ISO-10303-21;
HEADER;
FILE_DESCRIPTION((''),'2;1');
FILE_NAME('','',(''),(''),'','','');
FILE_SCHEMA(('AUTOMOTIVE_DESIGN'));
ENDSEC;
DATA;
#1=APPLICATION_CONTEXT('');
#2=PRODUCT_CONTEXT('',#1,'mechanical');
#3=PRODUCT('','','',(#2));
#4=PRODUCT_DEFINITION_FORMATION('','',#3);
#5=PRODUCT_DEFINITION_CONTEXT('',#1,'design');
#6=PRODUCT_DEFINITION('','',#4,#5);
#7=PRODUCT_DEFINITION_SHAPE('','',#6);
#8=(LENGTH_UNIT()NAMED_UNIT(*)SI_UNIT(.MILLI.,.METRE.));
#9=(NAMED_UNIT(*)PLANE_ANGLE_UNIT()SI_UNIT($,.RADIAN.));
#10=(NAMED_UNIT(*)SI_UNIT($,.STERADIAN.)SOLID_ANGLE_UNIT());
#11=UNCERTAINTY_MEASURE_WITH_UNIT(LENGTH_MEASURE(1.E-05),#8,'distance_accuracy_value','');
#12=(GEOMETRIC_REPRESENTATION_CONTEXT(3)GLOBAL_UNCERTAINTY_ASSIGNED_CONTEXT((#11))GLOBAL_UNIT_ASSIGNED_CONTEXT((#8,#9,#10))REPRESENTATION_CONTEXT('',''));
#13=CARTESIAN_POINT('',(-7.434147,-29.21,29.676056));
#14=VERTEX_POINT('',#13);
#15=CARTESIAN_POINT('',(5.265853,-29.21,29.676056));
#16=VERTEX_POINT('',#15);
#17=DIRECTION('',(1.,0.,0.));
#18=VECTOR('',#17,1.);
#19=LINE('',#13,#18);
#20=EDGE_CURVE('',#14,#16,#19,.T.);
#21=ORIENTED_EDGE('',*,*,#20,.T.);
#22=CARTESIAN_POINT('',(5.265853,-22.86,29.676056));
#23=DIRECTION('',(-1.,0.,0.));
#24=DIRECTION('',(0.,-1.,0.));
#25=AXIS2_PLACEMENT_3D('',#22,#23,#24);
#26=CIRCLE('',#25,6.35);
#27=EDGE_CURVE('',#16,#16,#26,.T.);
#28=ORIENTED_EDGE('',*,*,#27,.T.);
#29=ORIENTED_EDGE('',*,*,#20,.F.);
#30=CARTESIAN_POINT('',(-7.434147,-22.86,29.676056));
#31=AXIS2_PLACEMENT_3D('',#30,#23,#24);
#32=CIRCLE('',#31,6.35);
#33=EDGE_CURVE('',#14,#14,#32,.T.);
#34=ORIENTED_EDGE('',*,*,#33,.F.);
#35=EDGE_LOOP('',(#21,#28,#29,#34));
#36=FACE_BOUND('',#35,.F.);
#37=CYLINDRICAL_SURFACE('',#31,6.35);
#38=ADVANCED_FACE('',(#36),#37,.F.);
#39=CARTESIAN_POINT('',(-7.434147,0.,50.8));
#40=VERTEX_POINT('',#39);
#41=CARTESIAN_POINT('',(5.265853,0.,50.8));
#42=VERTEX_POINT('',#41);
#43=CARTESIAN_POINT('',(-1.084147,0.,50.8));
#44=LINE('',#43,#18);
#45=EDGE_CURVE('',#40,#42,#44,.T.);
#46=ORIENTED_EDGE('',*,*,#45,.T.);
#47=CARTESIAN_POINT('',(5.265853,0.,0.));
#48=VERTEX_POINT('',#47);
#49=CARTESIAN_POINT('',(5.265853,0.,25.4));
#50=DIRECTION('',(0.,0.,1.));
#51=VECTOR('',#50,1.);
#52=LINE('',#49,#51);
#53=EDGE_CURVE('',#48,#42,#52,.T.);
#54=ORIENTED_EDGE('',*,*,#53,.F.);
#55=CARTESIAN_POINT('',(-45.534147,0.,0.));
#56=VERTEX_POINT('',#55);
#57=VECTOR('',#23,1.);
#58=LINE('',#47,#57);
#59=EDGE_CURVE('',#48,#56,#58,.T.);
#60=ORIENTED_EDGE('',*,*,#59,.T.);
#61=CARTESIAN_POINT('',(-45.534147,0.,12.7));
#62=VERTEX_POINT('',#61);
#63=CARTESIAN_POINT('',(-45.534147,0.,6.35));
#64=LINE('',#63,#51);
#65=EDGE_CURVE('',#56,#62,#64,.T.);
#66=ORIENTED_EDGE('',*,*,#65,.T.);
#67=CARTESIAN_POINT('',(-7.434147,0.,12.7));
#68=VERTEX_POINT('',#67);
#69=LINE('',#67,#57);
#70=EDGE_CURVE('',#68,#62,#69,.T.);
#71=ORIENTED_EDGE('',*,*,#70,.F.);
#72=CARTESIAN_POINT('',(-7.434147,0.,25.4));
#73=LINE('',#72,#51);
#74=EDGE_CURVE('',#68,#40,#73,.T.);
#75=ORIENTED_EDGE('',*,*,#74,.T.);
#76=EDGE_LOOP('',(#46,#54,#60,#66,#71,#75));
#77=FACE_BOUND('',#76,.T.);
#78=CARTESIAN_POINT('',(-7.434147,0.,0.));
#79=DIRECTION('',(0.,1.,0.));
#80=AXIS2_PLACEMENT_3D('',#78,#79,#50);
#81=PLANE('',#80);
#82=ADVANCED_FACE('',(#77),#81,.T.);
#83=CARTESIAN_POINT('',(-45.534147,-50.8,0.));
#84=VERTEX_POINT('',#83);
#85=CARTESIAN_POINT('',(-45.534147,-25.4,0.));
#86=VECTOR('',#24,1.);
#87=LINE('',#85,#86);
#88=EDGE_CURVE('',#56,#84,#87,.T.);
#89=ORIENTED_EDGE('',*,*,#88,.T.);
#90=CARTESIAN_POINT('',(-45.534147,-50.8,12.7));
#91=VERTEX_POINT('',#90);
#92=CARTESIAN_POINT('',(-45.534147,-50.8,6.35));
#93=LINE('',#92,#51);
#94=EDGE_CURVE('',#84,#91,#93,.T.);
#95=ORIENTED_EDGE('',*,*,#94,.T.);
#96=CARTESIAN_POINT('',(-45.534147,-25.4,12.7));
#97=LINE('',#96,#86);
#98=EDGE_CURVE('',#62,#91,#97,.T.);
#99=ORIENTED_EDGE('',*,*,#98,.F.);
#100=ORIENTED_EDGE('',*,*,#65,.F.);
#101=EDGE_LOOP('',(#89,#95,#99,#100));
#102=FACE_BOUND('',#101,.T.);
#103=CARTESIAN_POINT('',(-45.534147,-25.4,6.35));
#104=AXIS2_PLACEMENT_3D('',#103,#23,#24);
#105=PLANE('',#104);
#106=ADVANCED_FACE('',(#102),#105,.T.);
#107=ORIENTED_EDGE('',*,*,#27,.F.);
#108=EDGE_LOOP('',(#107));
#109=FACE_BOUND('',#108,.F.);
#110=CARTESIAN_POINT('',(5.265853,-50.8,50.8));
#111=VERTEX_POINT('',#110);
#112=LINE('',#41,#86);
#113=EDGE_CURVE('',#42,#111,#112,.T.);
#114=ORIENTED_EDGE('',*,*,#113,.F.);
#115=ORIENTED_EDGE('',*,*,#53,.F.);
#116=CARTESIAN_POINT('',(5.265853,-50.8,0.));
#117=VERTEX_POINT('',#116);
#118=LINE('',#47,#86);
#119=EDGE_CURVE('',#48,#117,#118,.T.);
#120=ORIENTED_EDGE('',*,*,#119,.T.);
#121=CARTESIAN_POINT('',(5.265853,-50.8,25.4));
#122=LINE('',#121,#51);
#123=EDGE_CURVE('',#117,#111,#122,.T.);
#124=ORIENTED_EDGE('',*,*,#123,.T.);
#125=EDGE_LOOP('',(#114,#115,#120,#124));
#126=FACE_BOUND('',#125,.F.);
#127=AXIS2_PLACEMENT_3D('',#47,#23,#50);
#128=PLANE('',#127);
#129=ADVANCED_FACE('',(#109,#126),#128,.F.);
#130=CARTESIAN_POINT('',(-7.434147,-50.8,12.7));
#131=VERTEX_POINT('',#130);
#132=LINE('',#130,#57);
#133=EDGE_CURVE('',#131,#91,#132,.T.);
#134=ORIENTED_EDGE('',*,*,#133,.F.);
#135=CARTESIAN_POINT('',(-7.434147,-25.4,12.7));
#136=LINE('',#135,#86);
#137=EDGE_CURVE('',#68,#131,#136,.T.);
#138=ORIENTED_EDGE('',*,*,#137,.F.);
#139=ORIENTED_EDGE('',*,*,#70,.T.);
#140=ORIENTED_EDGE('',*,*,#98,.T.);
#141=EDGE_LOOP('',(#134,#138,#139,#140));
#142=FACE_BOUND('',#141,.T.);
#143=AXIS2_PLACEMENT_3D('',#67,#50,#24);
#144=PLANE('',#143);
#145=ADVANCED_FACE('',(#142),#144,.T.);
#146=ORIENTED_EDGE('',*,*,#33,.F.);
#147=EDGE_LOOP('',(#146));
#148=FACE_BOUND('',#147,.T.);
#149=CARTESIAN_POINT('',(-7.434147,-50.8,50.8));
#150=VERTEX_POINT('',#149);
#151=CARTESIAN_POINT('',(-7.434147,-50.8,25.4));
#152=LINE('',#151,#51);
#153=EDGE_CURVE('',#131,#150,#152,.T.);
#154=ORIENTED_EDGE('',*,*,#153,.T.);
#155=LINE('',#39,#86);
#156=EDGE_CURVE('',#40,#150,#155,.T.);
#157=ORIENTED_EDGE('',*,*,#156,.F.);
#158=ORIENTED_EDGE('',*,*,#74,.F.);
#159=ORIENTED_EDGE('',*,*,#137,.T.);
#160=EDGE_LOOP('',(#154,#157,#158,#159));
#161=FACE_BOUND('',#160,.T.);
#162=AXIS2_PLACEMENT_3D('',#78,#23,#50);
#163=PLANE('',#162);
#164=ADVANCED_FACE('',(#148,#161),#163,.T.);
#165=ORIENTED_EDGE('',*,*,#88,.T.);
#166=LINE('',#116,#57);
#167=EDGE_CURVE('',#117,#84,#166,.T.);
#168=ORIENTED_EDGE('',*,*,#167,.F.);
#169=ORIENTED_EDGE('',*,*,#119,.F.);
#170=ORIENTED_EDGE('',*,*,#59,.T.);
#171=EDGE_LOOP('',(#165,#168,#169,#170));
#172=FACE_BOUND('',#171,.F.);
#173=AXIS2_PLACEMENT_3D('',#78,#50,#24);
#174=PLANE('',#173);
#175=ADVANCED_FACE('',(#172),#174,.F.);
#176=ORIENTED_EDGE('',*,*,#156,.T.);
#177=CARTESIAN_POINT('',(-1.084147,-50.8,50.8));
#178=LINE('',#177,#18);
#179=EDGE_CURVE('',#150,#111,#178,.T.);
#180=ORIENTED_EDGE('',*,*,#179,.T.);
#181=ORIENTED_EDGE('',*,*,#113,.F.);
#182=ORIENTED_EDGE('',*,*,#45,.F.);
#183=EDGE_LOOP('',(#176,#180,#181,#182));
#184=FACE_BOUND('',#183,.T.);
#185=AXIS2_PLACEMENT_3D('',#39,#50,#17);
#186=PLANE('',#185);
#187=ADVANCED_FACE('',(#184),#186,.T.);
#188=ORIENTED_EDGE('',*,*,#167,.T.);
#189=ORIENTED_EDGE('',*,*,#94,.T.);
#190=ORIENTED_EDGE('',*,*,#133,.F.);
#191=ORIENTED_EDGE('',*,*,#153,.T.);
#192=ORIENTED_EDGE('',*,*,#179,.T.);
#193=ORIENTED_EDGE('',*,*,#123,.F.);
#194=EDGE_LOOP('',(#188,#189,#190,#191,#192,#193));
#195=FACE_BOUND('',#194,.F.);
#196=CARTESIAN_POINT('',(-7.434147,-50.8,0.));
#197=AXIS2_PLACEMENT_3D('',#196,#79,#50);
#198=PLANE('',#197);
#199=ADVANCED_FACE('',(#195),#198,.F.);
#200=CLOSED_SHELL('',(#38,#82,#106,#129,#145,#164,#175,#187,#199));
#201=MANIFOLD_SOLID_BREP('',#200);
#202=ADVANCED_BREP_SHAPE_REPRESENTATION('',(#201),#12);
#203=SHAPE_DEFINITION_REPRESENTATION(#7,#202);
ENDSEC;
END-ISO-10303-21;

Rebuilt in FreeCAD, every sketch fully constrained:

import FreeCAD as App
import Part
import Sketcher
from FreeCAD import Vector
Q = App.Units.Quantity

doc = App.newDocument("Part")
body = doc.addObject("PartDesign::Body", "Body")

# Sketch on XZ plane
sketch1 = body.newObject("Sketcher::SketchObject", "Sketch")
sketch1.AttachmentSupport = (doc.getObject("XZ_Plane"), [""])
sketch1.MapMode = "FlatFace"
sketch1.addGeometry([
    Part.LineSegment(Vector(-7.434147, 50.8, 0), Vector(-7.434147, 0, 0)),
    Part.LineSegment(Vector(-7.434147, 0, 0), Vector(5.265853, 0, 0)),
    Part.LineSegment(Vector(5.265853, 0, 0), Vector(5.265853, 50.8, 0)),
    Part.LineSegment(Vector(5.265853, 50.8, 0), Vector(-7.434147, 50.8, 0)),
], False)
sketch1.addConstraint([
    Sketcher.Constraint("Coincident", 0, 2, 1, 1),
    Sketcher.Constraint("Coincident", 1, 2, 2, 1),
    Sketcher.Constraint("Coincident", 2, 2, 3, 1),
    Sketcher.Constraint("Coincident", 3, 2, 0, 1),
    Sketcher.Constraint("Vertical", 0),
    Sketcher.Constraint("Horizontal", 1),
    Sketcher.Constraint("Vertical", 2),
    Sketcher.Constraint("Horizontal", 3),
    Sketcher.Constraint("PointOnObject", 0, 2, -1),
    Sketcher.Constraint("DistanceY", 0, 2, 0, 1, Q("2 in")),
    Sketcher.Constraint("DistanceX", 1, 1, 1, 2, Q("0.5 in")),
    Sketcher.Constraint("DistanceX", 0, 2, -1, 1, 7.434147),
])
pad1 = body.newObject("PartDesign::Pad", "Pad")
pad1.Profile = sketch1
pad1.Length = Q("2 in")

# Sketch on YZ plane
sketch2 = body.newObject("Sketcher::SketchObject", "Sketch001")
sketch2.AttachmentSupport = (doc.getObject("YZ_Plane"), [""])
sketch2.MapMode = "FlatFace"
sketch2.AttachmentOffset = App.Placement(Vector(0, 0, -7.434147), App.Rotation())
sketch2.addGeometry([
    Part.LineSegment(Vector(0, 12.7, 0), Vector(0, 0, 0)),
    Part.LineSegment(Vector(0, 0, 0), Vector(-50.8, 0, 0)),
    Part.LineSegment(Vector(-50.8, 0, 0), Vector(-50.8, 12.7, 0)),
    Part.LineSegment(Vector(-50.8, 12.7, 0), Vector(0, 12.7, 0)),
], False)
sketch2.addConstraint([
    Sketcher.Constraint("Coincident", 0, 2, 1, 1),
    Sketcher.Constraint("Coincident", 1, 2, 2, 1),
    Sketcher.Constraint("Coincident", 2, 2, 3, 1),
    Sketcher.Constraint("Coincident", 3, 2, 0, 1),
    Sketcher.Constraint("Vertical", 0),
    Sketcher.Constraint("Horizontal", 1),
    Sketcher.Constraint("Vertical", 2),
    Sketcher.Constraint("Horizontal", 3),
    Sketcher.Constraint("Coincident", 0, 2, -1, 1),
    Sketcher.Constraint("DistanceX", 1, 2, 1, 1, Q("2 in")),
    Sketcher.Constraint("DistanceY", 0, 2, 0, 1, Q("0.5 in")),
])
pad2 = body.newObject("PartDesign::Pad", "Pad001")
pad2.Profile = sketch2
pad2.Length = Q("1.5 in")
pad2.Reversed = True

# Sketch on YZ plane
sketch3 = body.newObject("Sketcher::SketchObject", "Sketch002")
sketch3.AttachmentSupport = (doc.getObject("YZ_Plane"), [""])
sketch3.MapMode = "FlatFace"
sketch3.AttachmentOffset = App.Placement(Vector(0, 0, -7.434147), App.Rotation())
sketch3.addGeometry(Part.Circle(Vector(-22.86, 29.676056, 0), Vector(0, 0, 1), 6.35), False)
sketch3.addConstraint([
    Sketcher.Constraint("Diameter", 0, Q("0.5 in")),
    Sketcher.Constraint("DistanceX", 0, 3, -1, 1, Q("0.9 in")),
    Sketcher.Constraint("DistanceY", -1, 1, 0, 3, 29.676056),
])
pocket1 = body.newObject("PartDesign::Pocket", "Pocket")
pocket1.Profile = sketch3
pocket1.Length = Q("1 in")
pocket1.Reversed = True

doc.recompute()
